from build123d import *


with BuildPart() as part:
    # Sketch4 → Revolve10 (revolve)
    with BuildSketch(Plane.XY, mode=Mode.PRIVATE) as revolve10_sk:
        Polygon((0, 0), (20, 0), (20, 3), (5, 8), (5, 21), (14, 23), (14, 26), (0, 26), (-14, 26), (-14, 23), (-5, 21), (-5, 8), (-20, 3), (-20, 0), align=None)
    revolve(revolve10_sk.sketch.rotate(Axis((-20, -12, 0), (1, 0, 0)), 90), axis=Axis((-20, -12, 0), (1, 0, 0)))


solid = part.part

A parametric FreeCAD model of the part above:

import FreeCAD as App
import Part
import Sketcher

V = App.Vector


def add_polygon(sketch, points):
    """Adds a closed chain of lines whose ends are joined by coincident constraints."""
    first, n = sketch.GeometryCount, len(points)
    for a, b in zip(points, points[1:] + points[:1]):
        sketch.addGeometry(Part.LineSegment(App.Vector(*a, 0), App.Vector(*b, 0)), False)
    for i in range(n):
        sketch.addConstraint(Sketcher.Constraint("Coincident", first + i, 2, first + (i + 1) % n, 1))

doc = App.newDocument("Part")
body = doc.addObject("PartDesign::Body", "Body")

# Sketch on XY plane
sketch1 = body.newObject("Sketcher::SketchObject", "Sketch")
sketch1.AttachmentSupport = (doc.getObject("XY_Plane"), [""])
sketch1.MapMode = "FlatFace"
add_polygon(sketch1, [(20, 0), (20, 3), (5, 8), (5, 21), (14, 23), (14, 26), (-14, 26), (-14, 23), (-5, 21), (-5, 8), (-20, 3), (-20, 0)])  # lines 0-11
sketch1.addGeometry(Part.LineSegment(V(-20, -12, 0), V(20, -12, 0)), True)  # axis
sketch1.addConstraint([
    Sketcher.Constraint("Vertical", 0),
    Sketcher.Constraint("Vertical", 2),
    Sketcher.Constraint("Vertical", 4),
    Sketcher.Constraint("Horizontal", 5),
    Sketcher.Constraint("Vertical", 6),
    Sketcher.Constraint("Vertical", 8),
    Sketcher.Constraint("Vertical", 10),
    Sketcher.Constraint("Horizontal", 11),
    Sketcher.Constraint("Horizontal", 12),
    Sketcher.Constraint("Symmetric", 10, 2, 11, 2, -1, 1),
    Sketcher.Constraint("Symmetric", 3, 2, 6, 2, -2),
    Sketcher.Constraint("Symmetric", 2, 2, 7, 2, -2),
    Sketcher.Constraint("Horizontal", 1, 2, 8, 2),
    Sketcher.Constraint("Horizontal", 0, 2, 9, 2),
    Sketcher.Constraint("Vertical", 10, 2, 12, 1),
    Sketcher.Constraint("Vertical", 11, 2, 12, 2),
    Sketcher.Constraint("Equal", 0, 4),
    Sketcher.Constraint("DistanceX", 5, 2, 5, 1, 28.0),
    Sketcher.Constraint("DistanceX", 11, 1, 11, 2, 40.0),
    Sketcher.Constraint("DistanceY", 0, 1, 0, 2, 3.0),
    Sketcher.Constraint("DistanceY", 2, 1, 2, 2, 13.0),
    Sketcher.Constraint("DistanceX", -1, 1, 1, 2, 5.0),
    Sketcher.Constraint("DistanceY", -1, 1, 1, 2, 8.0),
    Sketcher.Constraint("DistanceY", -1, 1, 3, 2, 23.0),
    Sketcher.Constraint("DistanceY", 12, 1, -1, 1, 12.0),
])
revolution = body.newObject("PartDesign::Revolution", "Revolution")
revolution.Profile = sketch1
revolution.ReferenceAxis = (sketch1, ["Axis0"])
revolution.Angle = 360

doc.recompute()
